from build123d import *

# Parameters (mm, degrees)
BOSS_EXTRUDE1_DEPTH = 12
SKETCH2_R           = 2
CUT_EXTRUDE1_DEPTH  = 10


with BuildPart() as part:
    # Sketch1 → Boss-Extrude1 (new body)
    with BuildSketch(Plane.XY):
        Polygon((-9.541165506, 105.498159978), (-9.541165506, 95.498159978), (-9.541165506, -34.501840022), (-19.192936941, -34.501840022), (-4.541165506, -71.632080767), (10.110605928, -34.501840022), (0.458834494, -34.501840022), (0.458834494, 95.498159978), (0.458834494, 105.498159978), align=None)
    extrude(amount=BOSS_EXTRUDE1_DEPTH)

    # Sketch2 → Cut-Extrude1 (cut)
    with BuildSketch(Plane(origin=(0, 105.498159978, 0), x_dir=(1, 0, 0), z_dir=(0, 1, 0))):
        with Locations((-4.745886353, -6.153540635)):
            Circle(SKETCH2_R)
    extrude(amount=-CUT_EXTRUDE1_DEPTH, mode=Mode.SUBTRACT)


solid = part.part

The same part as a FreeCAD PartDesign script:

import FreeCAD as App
import Part
import Sketcher
Q = App.Units.Quantity

doc = App.newDocument("Part")
body = doc.addObject("PartDesign::Body", "Body")

sketch1 = body.newObject("Sketcher::SketchObject", "Sketch")
sketch1.AttachmentSupport = (doc.getObject("XY_Plane"), [""])
sketch1.MapMode = "FlatFace"
sketch1.addGeometry([
    Part.LineSegment(App.Vector(-10, 105, 0), App.Vector(-10, -35, 0)),
    Part.LineSegment(App.Vector(-10, -35, 0), App.Vector(-19, -35, 0)),
    Part.LineSegment(App.Vector(-19, -35, 0), App.Vector(-5, -72, 0)),
    Part.LineSegment(App.Vector(-5, -72, 0), App.Vector(10, -35, 0)),
    Part.LineSegment(App.Vector(10, -35, 0), App.Vector(0, -35, 0)),
    Part.LineSegment(App.Vector(0, -35, 0), App.Vector(0, 105, 0)),
    Part.LineSegment(App.Vector(0, 105, 0), App.Vector(-10, 105, 0)),
], False)
sketch1.addConstraint([
    Sketcher.Constraint("Coincident", 0, 2, 1, 1),
    Sketcher.Constraint("Coincident", 1, 2, 2, 1),
    Sketcher.Constraint("Coincident", 2, 2, 3, 1),
    Sketcher.Constraint("Coincident", 3, 2, 4, 1),
    Sketcher.Constraint("Coincident", 4, 2, 5, 1),
    Sketcher.Constraint("Coincident", 5, 2, 6, 1),
    Sketcher.Constraint("Coincident", 6, 2, 0, 1),
    Sketcher.Constraint("Vertical", 0),
    Sketcher.Constraint("Horizontal", 1),
    Sketcher.Constraint("Horizontal", 4),
    Sketcher.Constraint("Vertical", 5),
    Sketcher.Constraint("Horizontal", 6),
    Sketcher.Constraint("Horizontal", 1, 2, 3, 2),
    Sketcher.Constraint("Equal", 1, 4),
    Sketcher.Constraint("Equal", 2, 3),
    Sketcher.Constraint("DistanceX", 6, 2, 6, 1, Q("10 mm")),
    Sketcher.Constraint("DistanceY", 0, 2, 0, 1, Q("140 mm")),
    Sketcher.Constraint("DistanceX", 1, 2, 1, 1, Q("9.651771 mm")),
    Sketcher.Constraint("DistanceY", 0, 2, -1, 1, Q("34.50184 mm")),
    Sketcher.Constraint("DistanceY", 2, 2, -1, 1, Q("71.632081 mm")),
    Sketcher.Constraint("DistanceX", 0, 2, -1, 1, Q("9.541166 mm")),
])
pad1 = body.newObject("PartDesign::Pad", "Pad")
pad1.Profile = sketch1
pad1.Length = 12

sketch2 = body.newObject("Sketcher::SketchObject", "Sketch001")
sketch2.AttachmentSupport = (doc.getObject("XZ_Plane"), [""])
sketch2.MapMode = "FlatFace"
sketch2.AttachmentOffset = App.Placement(App.Vector(0, 0, -105.49816), App.Rotation())
sketch2.addGeometry(Part.Circle(App.Vector(-4.7, 6.2, 0), App.Vector(0, 0, 1), 2), False)
sketch2.addConstraint([
    Sketcher.Constraint("Diameter", 0, Q("4 mm")),
    Sketcher.Constraint("DistanceY", -1, 1, 0, 3, Q("6.153541 mm")),
    Sketcher.Constraint("DistanceX", 0, 3, -1, 1, Q("4.745886 mm")),
])
pocket1 = body.newObject("PartDesign::Pocket", "Pocket")
pocket1.Profile = sketch2
pocket1.Length = 10
pocket1.Reversed = True

doc.recompute()
